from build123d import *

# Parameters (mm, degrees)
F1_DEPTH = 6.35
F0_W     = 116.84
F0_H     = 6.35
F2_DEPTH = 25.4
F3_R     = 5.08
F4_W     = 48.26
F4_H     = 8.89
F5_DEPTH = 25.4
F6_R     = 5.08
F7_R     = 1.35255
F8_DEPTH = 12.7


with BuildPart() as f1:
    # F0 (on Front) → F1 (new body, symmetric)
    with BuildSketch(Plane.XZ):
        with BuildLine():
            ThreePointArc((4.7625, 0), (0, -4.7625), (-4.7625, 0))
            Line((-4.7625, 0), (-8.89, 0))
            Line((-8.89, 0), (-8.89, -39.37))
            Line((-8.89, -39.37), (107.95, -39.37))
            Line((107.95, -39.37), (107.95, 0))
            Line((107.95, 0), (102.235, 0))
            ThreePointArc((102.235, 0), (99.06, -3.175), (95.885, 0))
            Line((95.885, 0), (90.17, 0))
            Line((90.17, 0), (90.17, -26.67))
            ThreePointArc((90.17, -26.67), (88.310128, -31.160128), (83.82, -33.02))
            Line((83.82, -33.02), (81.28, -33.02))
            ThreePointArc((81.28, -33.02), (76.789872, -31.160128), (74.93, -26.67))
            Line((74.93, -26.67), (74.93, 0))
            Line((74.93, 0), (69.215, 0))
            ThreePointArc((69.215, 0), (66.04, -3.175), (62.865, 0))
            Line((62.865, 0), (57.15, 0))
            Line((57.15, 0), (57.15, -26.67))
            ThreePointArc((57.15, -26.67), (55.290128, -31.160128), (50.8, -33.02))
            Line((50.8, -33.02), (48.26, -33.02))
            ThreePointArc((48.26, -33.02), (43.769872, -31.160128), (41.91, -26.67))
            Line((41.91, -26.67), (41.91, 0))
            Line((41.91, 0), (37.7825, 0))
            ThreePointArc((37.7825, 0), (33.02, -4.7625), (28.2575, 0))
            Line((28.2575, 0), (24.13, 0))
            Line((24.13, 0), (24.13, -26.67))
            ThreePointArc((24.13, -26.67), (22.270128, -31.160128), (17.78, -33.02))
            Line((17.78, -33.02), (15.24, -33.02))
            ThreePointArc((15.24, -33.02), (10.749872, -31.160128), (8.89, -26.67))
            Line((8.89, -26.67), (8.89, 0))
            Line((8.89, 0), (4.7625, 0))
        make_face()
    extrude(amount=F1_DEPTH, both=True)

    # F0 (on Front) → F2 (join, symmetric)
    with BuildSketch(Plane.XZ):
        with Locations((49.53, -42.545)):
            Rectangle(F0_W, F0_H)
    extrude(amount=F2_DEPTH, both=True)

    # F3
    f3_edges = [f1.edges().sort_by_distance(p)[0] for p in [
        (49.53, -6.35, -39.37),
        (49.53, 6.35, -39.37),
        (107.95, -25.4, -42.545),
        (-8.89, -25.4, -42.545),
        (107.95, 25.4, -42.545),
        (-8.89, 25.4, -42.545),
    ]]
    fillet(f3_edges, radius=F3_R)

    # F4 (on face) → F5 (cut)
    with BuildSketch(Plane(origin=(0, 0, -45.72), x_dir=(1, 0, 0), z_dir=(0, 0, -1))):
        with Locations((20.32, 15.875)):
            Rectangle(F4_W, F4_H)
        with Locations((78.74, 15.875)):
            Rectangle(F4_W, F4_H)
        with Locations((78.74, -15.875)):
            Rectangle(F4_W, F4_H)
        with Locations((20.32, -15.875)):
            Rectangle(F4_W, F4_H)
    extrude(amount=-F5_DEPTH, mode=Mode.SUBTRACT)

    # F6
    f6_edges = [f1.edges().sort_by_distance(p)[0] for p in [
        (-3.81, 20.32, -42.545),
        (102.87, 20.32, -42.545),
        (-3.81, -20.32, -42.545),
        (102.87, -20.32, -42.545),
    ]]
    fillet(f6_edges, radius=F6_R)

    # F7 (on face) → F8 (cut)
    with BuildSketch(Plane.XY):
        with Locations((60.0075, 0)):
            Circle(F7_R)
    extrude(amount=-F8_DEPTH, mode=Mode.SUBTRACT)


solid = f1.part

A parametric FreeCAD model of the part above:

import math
import FreeCAD as App
import Part
import Sketcher
from FreeCAD import Vector
Q = App.Units.Quantity


def edges_at(feature, points):
    """Names of the edges that pass closest to the given points."""
    edges = feature.Shape.Edges
    near = lambda p: min(range(len(edges)), key=lambda i: edges[i].distToShape(Part.Vertex(*p))[0])
    return sorted({f"Edge{near(p) + 1}" for p in points})

doc = App.newDocument("Part")
body = doc.addObject("PartDesign::Body", "Body")

# Sketch on XZ plane
sketch1 = body.newObject("Sketcher::SketchObject", "Sketch")
sketch1.AttachmentSupport = (doc.getObject("XZ_Plane"), [""])
sketch1.MapMode = "FlatFace"
sketch1.addGeometry(Part.ArcOfCircle(Part.Circle(Vector(0, 0, 0), Vector(0, 0, 1), 4.8), math.radians(180), math.radians(360)), False)
sketch1.addGeometry(Part.LineSegment(Vector(-4.8, 0, 0), Vector(-8.9, 0, 0)), False)
sketch1.addGeometry(Part.LineSegment(Vector(-8.9, 0, 0), Vector(-8.9, -39.4, 0)), False)
sketch1.addGeometry(Part.LineSegment(Vector(-8.9, -39.4, 0), Vector(108, -39.4, 0)), False)
sketch1.addGeometry(Part.LineSegment(Vector(108, -39.4, 0), Vector(108, 0, 0)), False)
sketch1.addGeometry(Part.LineSegment(Vector(108, 0, 0), Vector(102.2, 0, 0)), False)
sketch1.addGeometry(Part.ArcOfCircle(Part.Circle(Vector(99.1, 0, 0), Vector(0, 0, 1), 3.2), math.radians(180), math.radians(360)), False)
sketch1.addGeometry(Part.LineSegment(Vector(95.9, 0, 0), Vector(90.2, 0, 0)), False)
sketch1.addGeometry(Part.LineSegment(Vector(90.2, 0, 0), Vector(90.2, -26.7, 0)), False)
sketch1.addGeometry(Part.ArcOfCircle(Part.Circle(Vector(83.8, -26.7, 0), Vector(0, 0, 1), 6.4), math.radians(-90), math.radians(0)), False)
sketch1.addGeometry(Part.LineSegment(Vector(83.8, -33, 0), Vector(81.3, -33, 0)), False)
sketch1.addGeometry(Part.ArcOfCircle(Part.Circle(Vector(81.3, -26.7, 0), Vector(0, 0, 1), 6.4), math.radians(-180), math.radians(-90)), False)
sketch1.addGeometry(Part.LineSegment(Vector(74.9, -26.7, 0), Vector(74.9, 0, 0)), False)
sketch1.addGeometry(Part.LineSegment(Vector(74.9, 0, 0), Vector(69.2, 0, 0)), False)
sketch1.addGeometry(Part.ArcOfCircle(Part.Circle(Vector(66, 0, 0), Vector(0, 0, 1), 3.2), math.radians(180), math.radians(360)), False)
sketch1.addGeometry(Part.LineSegment(Vector(62.9, 0, 0), Vector(57.1, 0, 0)), False)
sketch1.addGeometry(Part.LineSegment(Vector(57.1, 0, 0), Vector(57.1, -26.7, 0)), False)
sketch1.addGeometry(Part.ArcOfCircle(Part.Circle(Vector(50.8, -26.7, 0), Vector(0, 0, 1), 6.4), math.radians(-90), math.radians(0)), False)
sketch1.addGeometry(Part.LineSegment(Vector(50.8, -33, 0), Vector(48.3, -33, 0)), False)
sketch1.addGeometry(Part.ArcOfCircle(Part.Circle(Vector(48.3, -26.7, 0), Vector(0, 0, 1), 6.4), math.radians(-180), math.radians(-90)), False)
sketch1.addGeometry(Part.LineSegment(Vector(41.9, -26.7, 0), Vector(41.9, 0, 0)), False)
sketch1.addGeometry(Part.LineSegment(Vector(41.9, 0, 0), Vector(37.8, 0, 0)), False)
sketch1.addGeometry(Part.ArcOfCircle(Part.Circle(Vector(33, 0, 0), Vector(0, 0, 1), 4.8), math.radians(180), math.radians(360)), False)
sketch1.addGeometry(Part.LineSegment(Vector(28.3, 0, 0), Vector(24.1, 0, 0)), False)
sketch1.addGeometry(Part.LineSegment(Vector(24.1, 0, 0), Vector(24.1, -26.7, 0)), False)
sketch1.addGeometry(Part.ArcOfCircle(Part.Circle(Vector(17.8, -26.7, 0), Vector(0, 0, 1), 6.4), math.radians(-90), math.radians(0)), False)
sketch1.addGeometry(Part.LineSegment(Vector(17.8, -33, 0), Vector(15.2, -33, 0)), False)
sketch1.addGeometry(Part.ArcOfCircle(Part.Circle(Vector(15.2, -26.7, 0), Vector(0, 0, 1), 6.4), math.radians(-180), math.radians(-90)), False)
sketch1.addGeometry(Part.LineSegment(Vector(8.9, -26.7, 0), Vector(8.9, 0, 0)), False)
sketch1.addGeometry(Part.LineSegment(Vector(8.9, 0, 0), Vector(4.8, 0, 0)), False)
sketch1.addConstraint(Sketcher.Constraint("Coincident", 0, 1, 1, 1))
sketch1.addConstraint(Sketcher.Constraint("Coincident", 1, 2, 2, 1))
sketch1.addConstraint(Sketcher.Constraint("Coincident", 2, 2, 3, 1))
sketch1.addConstraint(Sketcher.Constraint("Coincident", 3, 2, 4, 1))
sketch1.addConstraint(Sketcher.Constraint("Coincident", 4, 2, 5, 1))
sketch1.addConstraint(Sketcher.Constraint("Coincident", 5, 2, 6, 2))
sketch1.addConstraint(Sketcher.Constraint("Coincident", 6, 1, 7, 1))
sketch1.addConstraint(Sketcher.Constraint("Coincident", 7, 2, 8, 1))
sketch1.addConstraint(Sketcher.Constraint("Tangent", 8, 2, 9, 2))
sketch1.addConstraint(Sketcher.Constraint("Tangent", 9, 1, 10, 1))
sketch1.addConstraint(Sketcher.Constraint("Tangent", 10, 2, 11, 2))
sketch1.addConstraint(Sketcher.Constraint("Tangent", 11, 1, 12, 1))
sketch1.addConstraint(Sketcher.Constraint("Coincident", 12, 2, 13, 1))
sketch1.addConstraint(Sketcher.Constraint("Coincident", 13, 2, 14, 2))
sketch1.addConstraint(Sketcher.Constraint("Coincident", 14, 1, 15, 1))
sketch1.addConstraint(Sketcher.Constraint("Coincident", 15, 2, 16, 1))
sketch1.addConstraint(Sketcher.Constraint("Tangent", 16, 2, 17, 2))
sketch1.addConstraint(Sketcher.Constraint("Tangent", 17, 1, 18, 1))
sketch1.addConstraint(Sketcher.Constraint("Tangent", 18, 2, 19, 2))
sketch1.addConstraint(Sketcher.Constraint("Tangent", 19, 1, 20, 1))
sketch1.addConstraint(Sketcher.Constraint("Coincident", 20, 2, 21, 1))
sketch1.addConstraint(Sketcher.Constraint("Coincident", 21, 2, 22, 2))
sketch1.addConstraint(Sketcher.Constraint("Coincident", 22, 1, 23, 1))
sketch1.addConstraint(Sketcher.Constraint("Coincident", 23, 2, 24, 1))
sketch1.addConstraint(Sketcher.Constraint("Tangent", 24, 2, 25, 2))
sketch1.addConstraint(Sketcher.Constraint("Tangent", 25, 1, 26, 1))
sketch1.addConstraint(Sketcher.Constraint("Tangent", 26, 2, 27, 2))
sketch1.addConstraint(Sketcher.Constraint("Tangent", 27, 1, 28, 1))
sketch1.addConstraint(Sketcher.Constraint("Coincident", 28, 2, 29, 1))
sketch1.addConstraint(Sketcher.Constraint("Coincident", 29, 2, 0, 2))
sketch1.addConstraint(Sketcher.Constraint("Horizontal", 1))
sketch1.addConstraint(Sketcher.Constraint("Vertical", 2))
sketch1.addConstraint(Sketcher.Constraint("Horizontal", 3))
sketch1.addConstraint(Sketcher.Constraint("Vertical", 4))
sketch1.addConstraint(Sketcher.Constraint("Horizontal", 5))
sketch1.addConstraint(Sketcher.Constraint("Horizontal", 7))
sketch1.addConstraint(Sketcher.Constraint("Vertical", 8))
sketch1.addConstraint(Sketcher.Constraint("Horizontal", 10))
sketch1.addConstraint(Sketcher.Constraint("Vertical", 12))
sketch1.addConstraint(Sketcher.Constraint("Horizontal", 13))
sketch1.addConstraint(Sketcher.Constraint("Horizontal", 15))
sketch1.addConstraint(Sketcher.Constraint("Vertical", 16))
sketch1.addConstraint(Sketcher.Constraint("Horizontal", 18))
sketch1.addConstraint(Sketcher.Constraint("Vertical", 20))
sketch1.addConstraint(Sketcher.Constraint("Horizontal", 21))
sketch1.addConstraint(Sketcher.Constraint("Horizontal", 23))
sketch1.addConstraint(Sketcher.Constraint("Vertical", 24))
sketch1.addConstraint(Sketcher.Constraint("Horizontal", 26))
sketch1.addConstraint(Sketcher.Constraint("Vertical", 28))
sketch1.addConstraint(Sketcher.Constraint("Horizontal", 29))
sketch1.addConstraint(Sketcher.Constraint("Coincident", 0, 3, -1, 1))
sketch1.addConstraint(Sketcher.Constraint("Equal", 9, 11))
sketch1.addConstraint(Sketcher.Constraint("Equal", 6, 14))
sketch1.addConstraint(Sketcher.Constraint("Equal", 11, 17))
sketch1.addConstraint(Sketcher.Constraint("Equal", 17, 19))
sketch1.addConstraint(Sketcher.Constraint("Equal", 0, 22))
sketch1.addConstraint(Sketcher.Constraint("Equal", 19, 25))
sketch1.addConstraint(Sketcher.Constraint("Equal", 25, 27))
sketch1.addConstraint(Sketcher.Constraint("Symmetric", 1, 2, 28, 2, -1, 1))
sketch1.addConstraint(Sketcher.Constraint("PointOnObject", 6, 3, -1))
sketch1.addConstraint(Sketcher.Constraint("PointOnObject", 14, 3, -1))
sketch1.addConstraint(Sketcher.Constraint("PointOnObject", 22, 3, -1))
sketch1.addConstraint(Sketcher.Constraint("PointOnObject", 0, 1, -1))
sketch1.addConstraint(Sketcher.Constraint("PointOnObject", 4, 2, -1))
sketch1.addConstraint(Sketcher.Constraint("PointOnObject", 6, 1, -1))
sketch1.addConstraint(Sketcher.Constraint("PointOnObject", 12, 2, -1))
sketch1.addConstraint(Sketcher.Constraint("PointOnObject", 14, 1, -1))
sketch1.addConstraint(Sketcher.Constraint("PointOnObject", 20, 2, -1))
sketch1.addConstraint(Sketcher.Constraint("PointOnObject", 22, 1, -1))
sketch1.addConstraint(Sketcher.Constraint("Horizontal", 11, 3, 17, 3))
sketch1.addConstraint(Sketcher.Constraint("Horizontal", 19, 3, 25, 3))
sketch1.addConstraint(Sketcher.Constraint("Equal", 5, 7))
sketch1.addConstraint(Sketcher.Constraint("Equal", 7, 13))
sketch1.addConstraint(Sketcher.Constraint("Equal", 13, 15))
sketch1.addConstraint(Sketcher.Constraint("Equal", 10, 18))
sketch1.addConstraint(Sketcher.Constraint("Equal", 1, 21))
sketch1.addConstraint(Sketcher.Constraint("Equal", 21, 23))
sketch1.addConstraint(Sketcher.Constraint("Equal", 18, 26))
sketch1.addConstraint(Sketcher.Constraint("Radius", 9, Q("0.25 in")))
sketch1.addConstraint(Sketcher.Constraint("DistanceX", 3, 1, 3, 2, Q("4.6 in")))
sketch1.addConstraint(Sketcher.Constraint("DistanceX", 10, 2, 10, 1, Q("0.1 in")))
sketch1.addConstraint(Sketcher.Constraint("DistanceX", -1, 1, 17, 3, Q("2 in")))
sketch1.addConstraint(Sketcher.Constraint("Radius", 0, Q("0.1875 in")))
sketch1.addConstraint(Sketcher.Constraint("Radius", 6, Q("0.125 in")))
sketch1.addConstraint(Sketcher.Constraint("DistanceY", 2, 2, 2, 1, Q("1.55 in")))
sketch1.addConstraint(Sketcher.Constraint("DistanceY", 8, 2, 8, 1, Q("1.05 in")))
pad1 = body.newObject("PartDesign::Pad", "Pad")
pad1.Profile = sketch1
pad1.Length = Q("0.5 in")
pad1.Midplane = True

# Sketch on XZ plane
sketch2 = body.newObject("Sketcher::SketchObject", "Sketch001")
sketch2.AttachmentSupport = (doc.getObject("XZ_Plane"), [""])
sketch2.MapMode = "FlatFace"
sketch2.addGeometry(Part.LineSegment(Vector(-9, -39, 0), Vector(-9, -46, 0)), False)
sketch2.addGeometry(Part.LineSegment(Vector(-9, -46, 0), Vector(108, -46, 0)), False)
sketch2.addGeometry(Part.LineSegment(Vector(108, -46, 0), Vector(108, -39, 0)), False)
sketch2.addGeometry(Part.LineSegment(Vector(108, -39, 0), Vector(-9, -39, 0)), False)
sketch2.addConstraint(Sketcher.Constraint("Coincident", 0, 2, 1, 1))
sketch2.addConstraint(Sketcher.Constraint("Coincident", 1, 2, 2, 1))
sketch2.addConstraint(Sketcher.Constraint("Coincident", 2, 2, 3, 1))
sketch2.addConstraint(Sketcher.Constraint("Coincident", 3, 2, 0, 1))
sketch2.addConstraint(Sketcher.Constraint("Vertical", 0))
sketch2.addConstraint(Sketcher.Constraint("Horizontal", 1))
sketch2.addConstraint(Sketcher.Constraint("Vertical", 2))
sketch2.addConstraint(Sketcher.Constraint("Horizontal", 3))
sketch2.addConstraint(Sketcher.Constraint("DistanceX", 1, 1, 1, 2, Q("4.6 in")))
sketch2.addConstraint(Sketcher.Constraint("DistanceY", 0, 2, 0, 1, Q("0.25 in")))
sketch2.addConstraint(Sketcher.Constraint("DistanceY", 0, 2, -1, 1, Q("1.8 in")))
sketch2.addConstraint(Sketcher.Constraint("DistanceX", 0, 2, -1, 1, Q("0.35 in")))
pad2 = body.newObject("PartDesign::Pad", "Pad001")
pad2.Profile = sketch2
pad2.Length = Q("2 in")
pad2.Midplane = True
doc.recompute()

fillet = body.newObject("PartDesign::Fillet", "Fillet")
fillet.Base = (pad2, edges_at(pad2, [
    (49.53, -6.35, -39.37),
    (49.53, 6.35, -39.37),
    (107.95, -25.4, -42.545),
    (-8.89, -25.4, -42.545),
    (107.95, 25.4, -42.545),
    (-8.89, 25.4, -42.545),
]))
fillet.Radius = Q("0.2 in")

# Sketch on XY plane
sketch3 = body.newObject("Sketcher::SketchObject", "Sketch002")
sketch3.AttachmentSupport = (doc.getObject("XY_Plane"), [""])
sketch3.MapMode = "FlatFace"
sketch3.AttachmentOffset = App.Placement(Vector(0, 0, -1.8 * 25.4), App.Rotation())
sketch3.addGeometry(Part.LineSegment(Vector(-4, -20, 0), Vector(-4, -11, 0)), False)
sketch3.addGeometry(Part.LineSegment(Vector(-4, -11, 0), Vector(44, -11, 0)), False)
sketch3.addGeometry(Part.LineSegment(Vector(44, -11, 0), Vector(44, -20, 0)), False)
sketch3.addGeometry(Part.LineSegment(Vector(44, -20, 0), Vector(-4, -20, 0)), False)
sketch3.addGeometry(Part.LineSegment(Vector(55, -20, 0), Vector(55, -11, 0)), False)
sketch3.addGeometry(Part.LineSegment(Vector(55, -11, 0), Vector(103, -11, 0)), False)
sketch3.addGeometry(Part.LineSegment(Vector(103, -11, 0), Vector(103, -20, 0)), False)
sketch3.addGeometry(Part.LineSegment(Vector(103, -20, 0), Vector(55, -20, 0)), False)
sketch3.addGeometry(Part.LineSegment(Vector(55, 11, 0), Vector(55, 20, 0)), False)
sketch3.addGeometry(Part.LineSegment(Vector(55, 20, 0), Vector(103, 20, 0)), False)
sketch3.addGeometry(Part.LineSegment(Vector(103, 20, 0), Vector(103, 11, 0)), False)
sketch3.addGeometry(Part.LineSegment(Vector(103, 11, 0), Vector(55, 11, 0)), False)
sketch3.addGeometry(Part.LineSegment(Vector(-4, 11, 0), Vector(-4, 20, 0)), False)
sketch3.addGeometry(Part.LineSegment(Vector(-4, 20, 0), Vector(44, 20, 0)), False)
sketch3.addGeometry(Part.LineSegment(Vector(44, 20, 0), Vector(44, 11, 0)), False)
sketch3.addGeometry(Part.LineSegment(Vector(44, 11, 0), Vector(-4, 11, 0)), False)
sketch3.addConstraint(Sketcher.Constraint("Coincident", 0, 2, 1, 1))
sketch3.addConstraint(Sketcher.Constraint("Coincident", 1, 2, 2, 1))
sketch3.addConstraint(Sketcher.Constraint("Coincident", 2, 2, 3, 1))
sketch3.addConstraint(Sketcher.Constraint("Coincident", 3, 2, 0, 1))
sketch3.addConstraint(Sketcher.Constraint("Coincident", 4, 2, 5, 1))
sketch3.addConstraint(Sketcher.Constraint("Coincident", 5, 2, 6, 1))
sketch3.addConstraint(Sketcher.Constraint("Coincident", 6, 2, 7, 1))
sketch3.addConstraint(Sketcher.Constraint("Coincident", 7, 2, 4, 1))
sketch3.addConstraint(Sketcher.Constraint("Coincident", 8, 2, 9, 1))
sketch3.addConstraint(Sketcher.Constraint("Coincident", 9, 2, 10, 1))
sketch3.addConstraint(Sketcher.Constraint("Coincident", 10, 2, 11, 1))
sketch3.addConstraint(Sketcher.Constraint("Coincident", 11, 2, 8, 1))
sketch3.addConstraint(Sketcher.Constraint("Coincident", 12, 2, 13, 1))
sketch3.addConstraint(Sketcher.Constraint("Coincident", 13, 2, 14, 1))
sketch3.addConstraint(Sketcher.Constraint("Coincident", 14, 2, 15, 1))
sketch3.addConstraint(Sketcher.Constraint("Coincident", 15, 2, 12, 1))
sketch3.addConstraint(Sketcher.Constraint("Vertical", 0))
sketch3.addConstraint(Sketcher.Constraint("Horizontal", 1))
sketch3.addConstraint(Sketcher.Constraint("Vertical", 2))
sketch3.addConstraint(Sketcher.Constraint("Horizontal", 3))
sketch3.addConstraint(Sketcher.Constraint("Vertical", 4))
sketch3.addConstraint(Sketcher.Constraint("Horizontal", 5))
sketch3.addConstraint(Sketcher.Constraint("Vertical", 6))
sketch3.addConstraint(Sketcher.Constraint("Horizontal", 7))
sketch3.addConstraint(Sketcher.Constraint("Vertical", 8))
sketch3.addConstraint(Sketcher.Constraint("Horizontal", 9))
sketch3.addConstraint(Sketcher.Constraint("Vertical", 10))
sketch3.addConstraint(Sketcher.Constraint("Horizontal", 11))
sketch3.addConstraint(Sketcher.Constraint("Vertical", 12))
sketch3.addConstraint(Sketcher.Constraint("Horizontal", 13))
sketch3.addConstraint(Sketcher.Constraint("Vertical", 14))
sketch3.addConstraint(Sketcher.Constraint("Horizontal", 15))
sketch3.addConstraint(Sketcher.Constraint("Symmetric", 7, 2, 8, 2, -1))
sketch3.addConstraint(Sketcher.Constraint("Symmetric", 5, 2, 10, 2, -1))
sketch3.addConstraint(Sketcher.Constraint("Symmetric", 3, 2, 12, 2, -1))
sketch3.addConstraint(Sketcher.Constraint("Symmetric", 1, 2, 14, 2, -1))
sketch3.addConstraint(Sketcher.Constraint("Horizontal", 1, 2, 4, 2))
sketch3.addConstraint(Sketcher.Constraint("Horizontal", 3, 2, 6, 2))
sketch3.addConstraint(Sketcher.Constraint("Equal", 3, 5))
sketch3.addConstraint(Sketcher.Constraint("DistanceX", 1, 1, 1, 2, Q("1.9 in")))
sketch3.addConstraint(Sketcher.Constraint("DistanceY", 0, 1, 0, 2, Q("0.35 in")))
sketch3.addConstraint(Sketcher.Constraint("DistanceY", 2, 2, -1, 1, Q("0.8 in")))
sketch3.addConstraint(Sketcher.Constraint("DistanceX", 1, 2, 4, 2, Q("0.4 in")))
sketch3.addConstraint(Sketcher.Constraint("DistanceX", 0, 2, -1, 1, Q("0.15 in")))
pocket1 = body.newObject("PartDesign::Pocket", "Pocket")
pocket1.Profile = sketch3
pocket1.Length = Q("1 in")
pocket1.Reversed = True
doc.recompute()

fillet2 = body.newObject("PartDesign::Fillet", "Fillet001")
fillet2.Base = (pocket1, edges_at(pocket1, [
    (-3.81, 20.32, -42.545),
    (102.87, 20.32, -42.545),
    (-3.81, -20.32, -42.545),
    (102.87, -20.32, -42.545),
]))
fillet2.Radius = Q("0.2 in")

# Sketch on XY plane
sketch4 = body.newObject("Sketcher::SketchObject", "Sketch003")
sketch4.AttachmentSupport = (doc.getObject("XY_Plane"), [""])
sketch4.MapMode = "FlatFace"
sketch4.addGeometry(Part.Circle(Vector(60, 0, 0), Vector(0, 0, 1), 1.4), False)
sketch4.addConstraint(Sketcher.Constraint("PointOnObject", 0, 3, -1))
sketch4.addConstraint(Sketcher.Constraint("Diameter", 0, Q("0.1065 in")))
sketch4.addConstraint(Sketcher.Constraint("DistanceX", -1, 1, 0, 3, Q("2.3625 in")))
pocket2 = body.newObject("PartDesign::Pocket", "Pocket001")
pocket2.Profile = sketch4
pocket2.Length = Q("0.5 in")

doc.recompute()
